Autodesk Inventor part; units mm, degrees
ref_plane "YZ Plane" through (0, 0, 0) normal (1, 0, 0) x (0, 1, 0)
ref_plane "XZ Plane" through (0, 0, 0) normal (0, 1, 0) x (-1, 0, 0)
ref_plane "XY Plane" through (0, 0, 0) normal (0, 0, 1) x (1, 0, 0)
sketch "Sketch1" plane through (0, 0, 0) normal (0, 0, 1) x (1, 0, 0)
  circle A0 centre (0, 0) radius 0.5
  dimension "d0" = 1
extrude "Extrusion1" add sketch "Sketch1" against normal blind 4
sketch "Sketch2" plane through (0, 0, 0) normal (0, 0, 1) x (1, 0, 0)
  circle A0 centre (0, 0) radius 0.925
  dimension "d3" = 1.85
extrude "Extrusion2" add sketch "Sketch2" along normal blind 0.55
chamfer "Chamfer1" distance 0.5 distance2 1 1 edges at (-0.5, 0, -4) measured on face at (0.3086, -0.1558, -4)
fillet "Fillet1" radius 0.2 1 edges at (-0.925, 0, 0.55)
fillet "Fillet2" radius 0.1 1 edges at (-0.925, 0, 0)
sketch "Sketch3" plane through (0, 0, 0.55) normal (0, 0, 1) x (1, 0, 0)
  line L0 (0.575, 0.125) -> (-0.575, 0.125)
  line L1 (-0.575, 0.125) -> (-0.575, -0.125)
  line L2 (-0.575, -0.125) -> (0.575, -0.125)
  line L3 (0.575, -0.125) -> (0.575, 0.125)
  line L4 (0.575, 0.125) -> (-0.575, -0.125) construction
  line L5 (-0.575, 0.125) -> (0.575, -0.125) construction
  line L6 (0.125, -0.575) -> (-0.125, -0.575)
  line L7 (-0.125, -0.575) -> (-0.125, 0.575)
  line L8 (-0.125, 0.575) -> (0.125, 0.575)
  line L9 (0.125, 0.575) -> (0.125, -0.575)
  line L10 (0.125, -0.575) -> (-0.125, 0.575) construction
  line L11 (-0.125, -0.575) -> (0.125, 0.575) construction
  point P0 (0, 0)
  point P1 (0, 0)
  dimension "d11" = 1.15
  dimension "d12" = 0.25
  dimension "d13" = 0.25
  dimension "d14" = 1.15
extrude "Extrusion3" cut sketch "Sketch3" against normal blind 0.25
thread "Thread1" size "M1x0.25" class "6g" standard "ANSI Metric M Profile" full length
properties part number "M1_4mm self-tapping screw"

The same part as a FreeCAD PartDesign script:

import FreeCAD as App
import Part
import Sketcher

V = App.Vector


def edges_at(feature, points):
    """Names of the edges that pass closest to the given points."""
    edges = feature.Shape.Edges
    near = lambda p: min(range(len(edges)), key=lambda i: edges[i].distToShape(Part.Vertex(*p))[0])
    return sorted({f"Edge{near(p) + 1}" for p in points})

doc = App.newDocument("Part")
body = doc.addObject("PartDesign::Body", "Body")

sketch1 = body.newObject("Sketcher::SketchObject", "Sketch")
sketch1.AttachmentSupport = (doc.getObject("XY_Plane"), [""])
sketch1.MapMode = "FlatFace"
sketch1.addGeometry(Part.Circle(V(0, 0, 0), V(0, 0, 1), 0.5), False)
sketch1.addConstraint([
    Sketcher.Constraint("Coincident", 0, 3, -1, 1),
    Sketcher.Constraint("Diameter", 0, 1.0),
])
pad1 = body.newObject("PartDesign::Pad", "Pad")
pad1.Profile = sketch1
pad1.Length = 4
pad1.Reversed = True

sketch2 = body.newObject("Sketcher::SketchObject", "Sketch001")
sketch2.AttachmentSupport = (doc.getObject("XY_Plane"), [""])
sketch2.MapMode = "FlatFace"
sketch2.addGeometry(Part.Circle(V(0, 0, 0), V(0, 0, 1), 0.9), False)
sketch2.addConstraint([
    Sketcher.Constraint("Coincident", 0, 3, -1, 1),
    Sketcher.Constraint("Diameter", 0, 1.85),
])
pad2 = body.newObject("PartDesign::Pad", "Pad001")
pad2.Profile = sketch2
pad2.Length = 0.55
doc.recompute()

chamfer = body.newObject("PartDesign::Chamfer", "Chamfer")
chamfer.Base = (pad2, edges_at(pad2, [(-0.5, 0, -4)]))
chamfer.ChamferType = "Two distances"
chamfer.Size = 0.5
chamfer.Size2 = 1
chamfer.FlipDirection = True
doc.recompute()

fillet = body.newObject("PartDesign::Fillet", "Fillet")
fillet.Base = (chamfer, edges_at(chamfer, [(-0.925, 0, 0.55)]))
fillet.Radius = 0.2
doc.recompute()

fillet2 = body.newObject("PartDesign::Fillet", "Fillet001")
fillet2.Base = (fillet, edges_at(fillet, [(-0.925, 0, 0)]))
fillet2.Radius = 0.1

sketch3 = body.newObject("Sketcher::SketchObject", "Sketch002")
sketch3.AttachmentSupport = (doc.getObject("XY_Plane"), [""])
sketch3.MapMode = "FlatFace"
sketch3.AttachmentOffset = App.Placement(V(0, 0, 0.55), App.Rotation())
sketch3.addGeometry([
    Part.LineSegment(V(0.57, -0.12, 0), V(0.57, 0.12, 0)),
    Part.LineSegment(V(0.57, 0.12, 0), V(0.12, 0.12, 0)),
    Part.LineSegment(V(0.12, 0.12, 0), V(0.12, 0.57, 0)),
    Part.LineSegment(V(0.12, 0.57, 0), V(-0.12, 0.57, 0)),
    Part.LineSegment(V(-0.12, 0.57, 0), V(-0.12, 0.12, 0)),
    Part.LineSegment(V(-0.12, 0.12, 0), V(-0.57, 0.12, 0)),
    Part.LineSegment(V(-0.57, 0.12, 0), V(-0.57, -0.12, 0)),
    Part.LineSegment(V(-0.57, -0.12, 0), V(-0.12, -0.12, 0)),
    Part.LineSegment(V(-0.12, -0.12, 0), V(-0.12, -0.57, 0)),
    Part.LineSegment(V(-0.12, -0.57, 0), V(0.12, -0.57, 0)),
    Part.LineSegment(V(0.12, -0.57, 0), V(0.12, -0.12, 0)),
    Part.LineSegment(V(0.12, -0.12, 0), V(0.57, -0.12, 0)),
], False)
sketch3.addConstraint([
    Sketcher.Constraint("Coincident", 0, 2, 1, 1),
    Sketcher.Constraint("Coincident", 1, 2, 2, 1),
    Sketcher.Constraint("Coincident", 2, 2, 3, 1),
    Sketcher.Constraint("Coincident", 3, 2, 4, 1),
    Sketcher.Constraint("Coincident", 4, 2, 5, 1),
    Sketcher.Constraint("Coincident", 5, 2, 6, 1),
    Sketcher.Constraint("Coincident", 6, 2, 7, 1),
    Sketcher.Constraint("Coincident", 7, 2, 8, 1),
    Sketcher.Constraint("Coincident", 8, 2, 9, 1),
    Sketcher.Constraint("Coincident", 9, 2, 10, 1),
    Sketcher.Constraint("Coincident", 10, 2, 11, 1),
    Sketcher.Constraint("Coincident", 11, 2, 0, 1),
    Sketcher.Constraint("Vertical", 0),
    Sketcher.Constraint("Horizontal", 1),
    Sketcher.Constraint("Vertical", 2),
    Sketcher.Constraint("Horizontal", 3),
    Sketcher.Constraint("Vertical", 4),
    Sketcher.Constraint("Horizontal", 5),
    Sketcher.Constraint("Vertical", 6),
    Sketcher.Constraint("Horizontal", 7),
    Sketcher.Constraint("Vertical", 8),
    Sketcher.Constraint("Horizontal", 9),
    Sketcher.Constraint("Vertical", 10),
    Sketcher.Constraint("Horizontal", 11),
    Sketcher.Constraint("Symmetric", 0, 2, 6, 2, -1, 1),
    Sketcher.Constraint("Symmetric", 2, 2, 8, 2, -1, 1),
    Sketcher.Constraint("Symmetric", 4, 2, 10, 2, -1, 1),
    Sketcher.Constraint("Symmetric", 1, 2, 4, 2, -2),
    Sketcher.Constraint("Equal", 9, 0),
    Sketcher.Constraint("Equal", 11, 2),
    Sketcher.Constraint("DistanceX", 3, 2, 3, 1, 0.25),
    Sketcher.Constraint("DistanceX", 5, 2, 0, 2, 1.15),
])
pocket1 = body.newObject("PartDesign::Pocket", "Pocket")
pocket1.Profile = sketch3
pocket1.Length = 0.25

doc.recompute()
